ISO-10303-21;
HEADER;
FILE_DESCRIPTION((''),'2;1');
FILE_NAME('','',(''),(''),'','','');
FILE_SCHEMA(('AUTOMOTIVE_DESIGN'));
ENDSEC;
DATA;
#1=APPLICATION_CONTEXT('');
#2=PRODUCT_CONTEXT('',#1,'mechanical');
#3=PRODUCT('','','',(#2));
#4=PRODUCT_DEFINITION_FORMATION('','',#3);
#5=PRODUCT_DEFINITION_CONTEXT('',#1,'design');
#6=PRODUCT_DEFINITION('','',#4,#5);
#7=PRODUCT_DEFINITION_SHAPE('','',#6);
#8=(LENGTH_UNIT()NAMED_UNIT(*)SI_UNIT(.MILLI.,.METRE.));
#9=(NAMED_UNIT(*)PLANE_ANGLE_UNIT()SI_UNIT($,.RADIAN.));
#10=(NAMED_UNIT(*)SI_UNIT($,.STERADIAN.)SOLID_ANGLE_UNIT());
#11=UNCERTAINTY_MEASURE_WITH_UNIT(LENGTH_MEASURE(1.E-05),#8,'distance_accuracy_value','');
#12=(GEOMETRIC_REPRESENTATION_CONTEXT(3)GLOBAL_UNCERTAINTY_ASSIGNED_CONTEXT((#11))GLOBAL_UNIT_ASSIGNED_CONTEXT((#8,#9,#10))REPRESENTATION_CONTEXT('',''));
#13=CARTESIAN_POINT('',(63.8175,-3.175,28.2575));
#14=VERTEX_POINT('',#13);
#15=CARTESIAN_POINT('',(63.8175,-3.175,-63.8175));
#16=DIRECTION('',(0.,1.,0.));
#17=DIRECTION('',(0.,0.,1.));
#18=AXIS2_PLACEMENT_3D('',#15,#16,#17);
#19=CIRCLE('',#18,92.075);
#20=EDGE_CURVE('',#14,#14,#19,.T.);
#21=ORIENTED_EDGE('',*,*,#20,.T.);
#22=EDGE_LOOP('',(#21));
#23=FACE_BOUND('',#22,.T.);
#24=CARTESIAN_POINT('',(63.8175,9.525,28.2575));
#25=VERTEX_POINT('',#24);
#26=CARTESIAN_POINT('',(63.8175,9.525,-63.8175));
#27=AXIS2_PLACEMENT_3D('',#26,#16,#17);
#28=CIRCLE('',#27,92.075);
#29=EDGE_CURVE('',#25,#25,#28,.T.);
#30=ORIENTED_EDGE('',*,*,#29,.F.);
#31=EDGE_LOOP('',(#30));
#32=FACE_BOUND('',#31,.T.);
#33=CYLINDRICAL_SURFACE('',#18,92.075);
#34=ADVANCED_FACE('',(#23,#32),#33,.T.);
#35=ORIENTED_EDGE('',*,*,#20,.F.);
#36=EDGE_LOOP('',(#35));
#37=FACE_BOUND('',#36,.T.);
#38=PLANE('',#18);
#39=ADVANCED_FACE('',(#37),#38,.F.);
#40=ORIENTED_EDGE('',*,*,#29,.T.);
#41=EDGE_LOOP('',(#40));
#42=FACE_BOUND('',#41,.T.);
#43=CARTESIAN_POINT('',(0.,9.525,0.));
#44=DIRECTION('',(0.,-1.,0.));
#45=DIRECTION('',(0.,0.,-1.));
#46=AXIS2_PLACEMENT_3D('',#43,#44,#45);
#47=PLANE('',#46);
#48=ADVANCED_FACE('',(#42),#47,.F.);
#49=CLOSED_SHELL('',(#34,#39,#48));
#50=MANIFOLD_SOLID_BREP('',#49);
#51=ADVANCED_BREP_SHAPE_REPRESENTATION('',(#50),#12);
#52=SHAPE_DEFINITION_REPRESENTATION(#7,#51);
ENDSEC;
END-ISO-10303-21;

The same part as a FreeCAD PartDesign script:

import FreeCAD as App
import Part
import Sketcher
Q = App.Units.Quantity


def add_polygon(sketch, points):
    """Adds a closed chain of lines whose ends are joined by coincident constraints."""
    first, n = sketch.GeometryCount, len(points)
    for a, b in zip(points, points[1:] + points[:1]):
        sketch.addGeometry(Part.LineSegment(App.Vector(*a, 0), App.Vector(*b, 0)), False)
    for i in range(n):
        sketch.addConstraint(Sketcher.Constraint("Coincident", first + i, 2, first + (i + 1) % n, 1))

doc = App.newDocument("Part")
body = doc.addObject("PartDesign::Body", "Body")

sketch1 = body.newObject("Sketcher::SketchObject", "Sketch")
sketch1.AttachmentSupport = (doc.getObject("XZ_Plane"), [""])
sketch1.MapMode = "FlatFace"
add_polygon(sketch1, [(0, -128), (0, 0), (128, 0), (128, -128)])
sketch1.addConstraint(Sketcher.Constraint("Vertical", 0))
sketch1.addConstraint(Sketcher.Constraint("Horizontal", 1))
sketch1.addConstraint(Sketcher.Constraint("Vertical", 2))
sketch1.addConstraint(Sketcher.Constraint("Horizontal", 3))
sketch1.addConstraint(Sketcher.Constraint("Coincident", 0, 2, -1, 1))
sketch1.addConstraint(Sketcher.Constraint("Equal", 3, 0))
sketch1.addConstraint(Sketcher.Constraint("DistanceX", 1, 1, 1, 2, Q("5.025 in")))
pad1 = body.newObject("PartDesign::Pad", "Pad")
pad1.Profile = sketch1
pad1.Length = Q("0.375 in")
pad1.Reversed = True

sketch2 = body.newObject("Sketcher::SketchObject", "Sketch001")
sketch2.AttachmentSupport = (doc.getObject("XZ_Plane"), [""])
sketch2.MapMode = "FlatFace"
sketch2.AttachmentOffset = App.Placement(App.Vector(0, 0, -0.375 * 25.4), App.Rotation())
sketch2.addGeometry(Part.Circle(App.Vector(64, -64, 0), App.Vector(0, 0, 1), 92), False)
sketch2.addConstraint(Sketcher.Constraint("Diameter", 0, Q("7.25 in")))
sketch2.addConstraint(Sketcher.Constraint("DistanceX", -1, 1, 0, 3, Q("2.5125 in")))
sketch2.addConstraint(Sketcher.Constraint("DistanceY", 0, 3, -1, 1, Q("2.5125 in")))
pad2 = body.newObject("PartDesign::Pad", "Pad001")
pad2.Profile = sketch2
pad2.Length = Q("0.5 in")

doc.recompute()
